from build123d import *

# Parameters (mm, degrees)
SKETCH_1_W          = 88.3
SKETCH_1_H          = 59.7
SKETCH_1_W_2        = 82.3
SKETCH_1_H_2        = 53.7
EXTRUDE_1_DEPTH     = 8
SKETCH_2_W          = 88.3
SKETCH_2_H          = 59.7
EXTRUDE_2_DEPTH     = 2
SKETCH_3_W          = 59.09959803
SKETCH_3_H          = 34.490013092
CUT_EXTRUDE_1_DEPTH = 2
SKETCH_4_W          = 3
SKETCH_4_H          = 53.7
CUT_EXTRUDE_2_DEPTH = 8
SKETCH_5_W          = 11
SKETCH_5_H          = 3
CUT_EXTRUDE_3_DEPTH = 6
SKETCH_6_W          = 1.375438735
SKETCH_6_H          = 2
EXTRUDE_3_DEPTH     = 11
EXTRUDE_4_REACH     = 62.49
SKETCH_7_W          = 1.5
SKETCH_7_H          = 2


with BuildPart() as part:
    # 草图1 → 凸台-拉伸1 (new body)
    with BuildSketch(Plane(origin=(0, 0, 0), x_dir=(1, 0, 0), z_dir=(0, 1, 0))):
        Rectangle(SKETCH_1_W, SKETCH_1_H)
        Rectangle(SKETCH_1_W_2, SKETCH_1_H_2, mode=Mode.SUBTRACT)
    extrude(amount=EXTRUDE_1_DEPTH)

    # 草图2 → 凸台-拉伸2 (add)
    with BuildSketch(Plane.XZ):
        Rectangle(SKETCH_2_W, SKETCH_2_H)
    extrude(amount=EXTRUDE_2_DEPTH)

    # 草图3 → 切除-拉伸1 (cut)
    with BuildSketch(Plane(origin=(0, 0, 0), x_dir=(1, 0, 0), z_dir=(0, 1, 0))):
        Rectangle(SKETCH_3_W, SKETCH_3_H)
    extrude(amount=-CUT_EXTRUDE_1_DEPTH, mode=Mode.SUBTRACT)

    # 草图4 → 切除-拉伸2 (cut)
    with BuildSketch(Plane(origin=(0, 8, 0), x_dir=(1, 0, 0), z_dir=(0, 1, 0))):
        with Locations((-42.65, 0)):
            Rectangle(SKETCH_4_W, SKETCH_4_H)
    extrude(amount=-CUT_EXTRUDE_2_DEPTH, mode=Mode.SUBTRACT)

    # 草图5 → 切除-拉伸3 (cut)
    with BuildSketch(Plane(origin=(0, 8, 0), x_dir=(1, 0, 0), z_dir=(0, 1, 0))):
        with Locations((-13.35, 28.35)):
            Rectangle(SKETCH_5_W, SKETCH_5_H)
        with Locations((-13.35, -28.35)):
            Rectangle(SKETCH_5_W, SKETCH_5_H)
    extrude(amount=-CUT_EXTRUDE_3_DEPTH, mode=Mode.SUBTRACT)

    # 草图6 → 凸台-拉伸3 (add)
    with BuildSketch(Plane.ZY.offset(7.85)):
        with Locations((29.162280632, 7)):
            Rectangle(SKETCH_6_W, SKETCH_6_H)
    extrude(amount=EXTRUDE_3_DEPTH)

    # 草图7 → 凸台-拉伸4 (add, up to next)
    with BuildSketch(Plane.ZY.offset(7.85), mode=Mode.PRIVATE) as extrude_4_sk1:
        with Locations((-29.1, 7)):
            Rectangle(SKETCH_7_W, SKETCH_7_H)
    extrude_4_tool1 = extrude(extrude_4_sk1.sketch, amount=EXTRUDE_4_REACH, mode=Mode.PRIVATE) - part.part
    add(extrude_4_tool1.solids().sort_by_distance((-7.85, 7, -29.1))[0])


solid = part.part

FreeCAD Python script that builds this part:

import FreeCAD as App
import Part
import Sketcher
from FreeCAD import Vector
Q = App.Units.Quantity


def add_polygon(sketch, points):
    """Adds a closed chain of lines whose ends are joined by coincident constraints."""
    first, n = sketch.GeometryCount, len(points)
    for a, b in zip(points, points[1:] + points[:1]):
        sketch.addGeometry(Part.LineSegment(App.Vector(*a, 0), App.Vector(*b, 0)), False)
    for i in range(n):
        sketch.addConstraint(Sketcher.Constraint("Coincident", first + i, 2, first + (i + 1) % n, 1))

doc = App.newDocument("Part")
body = doc.addObject("PartDesign::Body", "Body")

# Sketch on XZ plane
sketch1 = doc.addObject("Sketcher::SketchObject", "Sketch")
body.addObject(sketch1)
sketch1.AttachmentSupport = (doc.XZ_Plane, [""])
sketch1.MapMode = "FlatFace"
add_polygon(sketch1, [(-44, -30), (-44, 30), (44, 30), (44, -30)])  # lines 0-3
add_polygon(sketch1, [(41, 27), (-41, 27), (-41, -27), (41, -27)])  # lines 4-7
sketch1.addConstraint([
    Sketcher.Constraint("Vertical", 0),
    Sketcher.Constraint("Horizontal", 1),
    Sketcher.Constraint("Vertical", 2),
    Sketcher.Constraint("Horizontal", 3),
    Sketcher.Constraint("Horizontal", 4),
    Sketcher.Constraint("Vertical", 5),
    Sketcher.Constraint("Horizontal", 6),
    Sketcher.Constraint("Vertical", 7),
    Sketcher.Constraint("Symmetric", 0, 2, 2, 2, -1, 1),
    Sketcher.Constraint("Symmetric", 4, 2, 6, 2, -1, 1),
    Sketcher.Constraint("DistanceX", 1, 1, 1, 2, Q("88.3 mm")),
    Sketcher.Constraint("DistanceX", 4, 2, 4, 1, Q("82.3 mm")),
    Sketcher.Constraint("DistanceY", 0, 1, 0, 2, Q("59.7 mm")),
    Sketcher.Constraint("DistanceY", 5, 2, 5, 1, Q("53.7 mm")),
])
pad1 = doc.addObject("PartDesign::Pad", "Pad")
body.addObject(pad1)
pad1.Profile = sketch1
pad1.Length = 8
pad1.Reversed = True

# Sketch on XZ plane
sketch2 = doc.addObject("Sketcher::SketchObject", "Sketch001")
body.addObject(sketch2)
sketch2.AttachmentSupport = (doc.XZ_Plane, [""])
sketch2.MapMode = "FlatFace"
add_polygon(sketch2, [(-44, 30), (-44, -30), (44, -30), (44, 30)])  # lines 0-3
sketch2.addConstraint([
    Sketcher.Constraint("Vertical", 0),
    Sketcher.Constraint("Horizontal", 1),
    Sketcher.Constraint("Vertical", 2),
    Sketcher.Constraint("Horizontal", 3),
    Sketcher.Constraint("Symmetric", 0, 2, 2, 2, -1, 1),
    Sketcher.Constraint("DistanceX", 1, 1, 1, 2, Q("88.3 mm")),
    Sketcher.Constraint("DistanceY", 0, 2, 0, 1, Q("59.7 mm")),
])
pad2 = doc.addObject("PartDesign::Pad", "Pad001")
body.addObject(pad2)
pad2.Profile = sketch2
pad2.Length = 2

# Sketch on XZ plane
sketch3 = doc.addObject("Sketcher::SketchObject", "Sketch002")
body.addObject(sketch3)
sketch3.AttachmentSupport = (doc.XZ_Plane, [""])
sketch3.MapMode = "FlatFace"
add_polygon(sketch3, [(-30, -17), (-30, 17), (30, 17), (30, -17)])  # lines 0-3
sketch3.addConstraint([
    Sketcher.Constraint("Vertical", 0),
    Sketcher.Constraint("Horizontal", 1),
    Sketcher.Constraint("Vertical", 2),
    Sketcher.Constraint("Horizontal", 3),
    Sketcher.Constraint("Symmetric", 0, 2, 2, 2, -1, 1),
    Sketcher.Constraint("DistanceX", 1, 1, 1, 2, Q("59.099598 mm")),
    Sketcher.Constraint("DistanceY", 0, 1, 0, 2, Q("34.490013 mm")),
])
pocket1 = doc.addObject("PartDesign::Pocket", "Pocket")
body.addObject(pocket1)
pocket1.Profile = sketch3
pocket1.Length = 2
pocket1.Reversed = True

# Sketch on XZ plane
sketch4 = doc.addObject("Sketcher::SketchObject", "Sketch003")
body.addObject(sketch4)
sketch4.AttachmentSupport = (doc.XZ_Plane, [""])
sketch4.MapMode = "FlatFace"
sketch4.AttachmentOffset = App.Placement(Vector(0, 0, -8), App.Rotation())
add_polygon(sketch4, [(-44.1, -26.9), (-44.1, 26.9), (-41.1, 26.9), (-41.1, -26.9)])  # lines 0-3
sketch4.addConstraint([
    Sketcher.Constraint("Vertical", 0),
    Sketcher.Constraint("Horizontal", 1),
    Sketcher.Constraint("Vertical", 2),
    Sketcher.Constraint("Horizontal", 3),
    Sketcher.Constraint("DistanceX", 1, 1, 1, 2, Q("3 mm")),
    Sketcher.Constraint("DistanceY", 0, 1, 0, 2, Q("53.7 mm")),
    Sketcher.Constraint("DistanceX", 0, 2, -1, 1, Q("44.15 mm")),
    Sketcher.Constraint("DistanceY", -1, 1, 0, 2, Q("26.85 mm")),
])
pocket2 = doc.addObject("PartDesign::Pocket", "Pocket001")
body.addObject(pocket2)
pocket2.Profile = sketch4
pocket2.Length = 8
pocket2.Reversed = True

# Sketch on XZ plane
sketch5 = doc.addObject("Sketcher::SketchObject", "Sketch004")
body.addObject(sketch5)
sketch5.AttachmentSupport = (doc.XZ_Plane, [""])
sketch5.MapMode = "FlatFace"
sketch5.AttachmentOffset = App.Placement(Vector(0, 0, -8), App.Rotation())
add_polygon(sketch5, [(-18.9, -29.9), (-18.9, -26.9), (-7.8, -26.9), (-7.8, -29.9)])  # lines 0-3
add_polygon(sketch5, [(-18.9, 26.9), (-18.9, 29.9), (-7.8, 29.9), (-7.8, 26.9)])  # lines 4-7
sketch5.addConstraint([
    Sketcher.Constraint("Vertical", 0),
    Sketcher.Constraint("Horizontal", 1),
    Sketcher.Constraint("Vertical", 2),
    Sketcher.Constraint("Horizontal", 3),
    Sketcher.Constraint("Vertical", 4),
    Sketcher.Constraint("Horizontal", 5),
    Sketcher.Constraint("Vertical", 6),
    Sketcher.Constraint("Horizontal", 7),
    Sketcher.Constraint("Symmetric", 3, 2, 4, 2, -1),
    Sketcher.Constraint("Symmetric", 1, 2, 6, 2, -1),
    Sketcher.Constraint("DistanceX", 1, 1, 1, 2, Q("11 mm")),
    Sketcher.Constraint("DistanceY", 0, 1, 0, 2, Q("3 mm")),
    Sketcher.Constraint("DistanceY", 0, 2, 4, 2, Q("56.7 mm")),
    Sketcher.Constraint("DistanceX", 0, 2, -1, 1, Q("18.85 mm")),
])
pocket3 = doc.addObject("PartDesign::Pocket", "Pocket002")
body.addObject(pocket3)
pocket3.Profile = sketch5
pocket3.Length = 6
pocket3.Reversed = True

# Sketch on YZ plane
sketch6 = doc.addObject("Sketcher::SketchObject", "Sketch005")
body.addObject(sketch6)
sketch6.AttachmentSupport = (doc.YZ_Plane, [""])
sketch6.MapMode = "FlatFace"
sketch6.AttachmentOffset = App.Placement(Vector(0, 0, -7.85), App.Rotation())
add_polygon(sketch6, [(8, 28.5), (6, 28.5), (6, 29.9), (8, 29.9)])  # lines 0-3
sketch6.addConstraint([
    Sketcher.Constraint("Horizontal", 0),
    Sketcher.Constraint("Vertical", 1),
    Sketcher.Constraint("Horizontal", 2),
    Sketcher.Constraint("Vertical", 3),
    Sketcher.Constraint("DistanceX", 0, 2, 0, 1, Q("2 mm")),
    Sketcher.Constraint("DistanceX", -1, 1, 0, 2, Q("6 mm")),
    Sketcher.Constraint("DistanceY", -1, 1, 1, 2, Q("29.85 mm")),
    Sketcher.Constraint("DistanceY", 1, 1, 1, 2, Q("1.375439 mm")),
])
pad3 = doc.addObject("PartDesign::Pad", "Pad002")
body.addObject(pad3)
pad3.Profile = sketch6
pad3.Length = 11
pad3.Reversed = True

# Sketch on YZ plane
sketch7 = doc.addObject("Sketcher::SketchObject", "Sketch006")
body.addObject(sketch7)
sketch7.AttachmentSupport = (doc.YZ_Plane, [""])
sketch7.MapMode = "FlatFace"
sketch7.AttachmentOffset = App.Placement(Vector(0, 0, -7.85), App.Rotation())
add_polygon(sketch7, [(8, -29.9), (6, -29.9), (6, -28.4), (8, -28.4)])  # lines 0-3
sketch7.addConstraint([
    Sketcher.Constraint("Horizontal", 0),
    Sketcher.Constraint("Vertical", 1),
    Sketcher.Constraint("Horizontal", 2),
    Sketcher.Constraint("Vertical", 3),
    Sketcher.Constraint("DistanceX", 0, 2, 0, 1, Q("2 mm")),
    Sketcher.Constraint("DistanceY", 1, 1, 1, 2, Q("1.5 mm")),
    Sketcher.Constraint("DistanceX", -1, 1, 0, 2, Q("6 mm")),
    Sketcher.Constraint("DistanceY", 0, 2, -1, 1, Q("29.85 mm")),
])
pad4 = doc.addObject("PartDesign::Pad", "Pad003")
body.addObject(pad4)
pad4.Profile = sketch7
pad4.Type = "UpToFirst"
pad4.Reversed = True

doc.recompute()
